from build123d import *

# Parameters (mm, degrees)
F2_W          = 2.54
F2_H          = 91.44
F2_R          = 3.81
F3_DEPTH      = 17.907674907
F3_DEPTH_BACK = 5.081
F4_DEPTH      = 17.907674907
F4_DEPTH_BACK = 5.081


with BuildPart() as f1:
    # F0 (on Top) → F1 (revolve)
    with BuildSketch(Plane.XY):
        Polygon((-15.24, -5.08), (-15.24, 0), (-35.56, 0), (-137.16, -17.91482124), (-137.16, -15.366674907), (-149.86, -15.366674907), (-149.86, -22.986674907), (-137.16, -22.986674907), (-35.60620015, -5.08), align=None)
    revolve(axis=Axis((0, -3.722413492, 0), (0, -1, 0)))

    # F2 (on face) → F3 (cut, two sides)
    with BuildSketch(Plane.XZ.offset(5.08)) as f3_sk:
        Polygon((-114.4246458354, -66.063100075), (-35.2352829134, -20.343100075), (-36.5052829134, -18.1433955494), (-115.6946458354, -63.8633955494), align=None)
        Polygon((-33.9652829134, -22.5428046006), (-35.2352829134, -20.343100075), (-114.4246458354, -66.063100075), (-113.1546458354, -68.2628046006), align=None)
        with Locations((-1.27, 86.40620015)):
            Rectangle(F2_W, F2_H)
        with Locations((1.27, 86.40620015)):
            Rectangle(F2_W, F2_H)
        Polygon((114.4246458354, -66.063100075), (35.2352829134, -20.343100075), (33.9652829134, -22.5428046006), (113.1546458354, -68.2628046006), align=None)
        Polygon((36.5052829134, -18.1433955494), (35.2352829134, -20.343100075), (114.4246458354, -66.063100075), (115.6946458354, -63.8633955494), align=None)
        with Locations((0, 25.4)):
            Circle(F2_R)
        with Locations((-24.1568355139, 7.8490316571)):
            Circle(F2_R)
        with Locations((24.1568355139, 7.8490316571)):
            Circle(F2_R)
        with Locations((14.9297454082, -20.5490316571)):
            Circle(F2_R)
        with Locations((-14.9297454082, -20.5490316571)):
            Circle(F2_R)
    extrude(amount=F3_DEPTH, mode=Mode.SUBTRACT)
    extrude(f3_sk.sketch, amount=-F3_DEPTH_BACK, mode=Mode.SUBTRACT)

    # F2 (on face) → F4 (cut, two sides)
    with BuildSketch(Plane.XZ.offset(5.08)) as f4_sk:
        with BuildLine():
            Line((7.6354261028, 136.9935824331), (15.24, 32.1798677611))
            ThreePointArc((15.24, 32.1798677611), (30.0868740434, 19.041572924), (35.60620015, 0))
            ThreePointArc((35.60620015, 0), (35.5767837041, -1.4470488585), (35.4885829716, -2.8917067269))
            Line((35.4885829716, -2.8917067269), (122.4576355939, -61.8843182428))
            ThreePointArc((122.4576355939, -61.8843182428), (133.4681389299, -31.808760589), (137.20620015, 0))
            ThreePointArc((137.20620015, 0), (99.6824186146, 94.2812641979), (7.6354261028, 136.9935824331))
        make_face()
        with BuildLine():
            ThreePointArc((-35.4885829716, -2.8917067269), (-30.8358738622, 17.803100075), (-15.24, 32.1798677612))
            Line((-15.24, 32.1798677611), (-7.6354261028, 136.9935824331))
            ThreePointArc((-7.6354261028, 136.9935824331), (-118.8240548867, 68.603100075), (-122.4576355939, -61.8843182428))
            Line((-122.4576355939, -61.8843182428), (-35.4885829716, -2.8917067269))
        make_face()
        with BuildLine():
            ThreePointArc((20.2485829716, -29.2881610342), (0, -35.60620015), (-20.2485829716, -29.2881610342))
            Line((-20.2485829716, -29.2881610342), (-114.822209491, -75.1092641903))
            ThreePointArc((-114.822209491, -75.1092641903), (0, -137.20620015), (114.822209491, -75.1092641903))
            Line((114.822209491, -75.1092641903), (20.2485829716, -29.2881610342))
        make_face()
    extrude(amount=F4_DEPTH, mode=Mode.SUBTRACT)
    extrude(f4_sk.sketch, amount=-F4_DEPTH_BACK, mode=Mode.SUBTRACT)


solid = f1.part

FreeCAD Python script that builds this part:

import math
import FreeCAD as App
import Part
import Sketcher

V = App.Vector
Q = App.Units.Quantity


def add_polygon(sketch, points):
    """Adds a closed chain of lines whose ends are joined by coincident constraints."""
    first, n = sketch.GeometryCount, len(points)
    for a, b in zip(points, points[1:] + points[:1]):
        sketch.addGeometry(Part.LineSegment(App.Vector(*a, 0), App.Vector(*b, 0)), False)
    for i in range(n):
        sketch.addConstraint(Sketcher.Constraint("Coincident", first + i, 2, first + (i + 1) % n, 1))

doc = App.newDocument("Part")
body = doc.addObject("PartDesign::Body", "Body")

sketch1 = doc.addObject("Sketcher::SketchObject", "Sketch")
body.addObject(sketch1)
sketch1.AttachmentSupport = (doc.XY_Plane, [""])
sketch1.MapMode = "FlatFace"
add_polygon(sketch1, [(-15.2, -5.1), (-15.2, 0), (-35.6, 0), (-137.2, -17.9), (-137.2, -15.4), (-149.9, -15.4), (-149.9, -23), (-137.2, -23), (-35.6, -5.1)])
sketch1.addConstraint([
    Sketcher.Constraint("Vertical", 0),
    Sketcher.Constraint("Horizontal", 1),
    Sketcher.Constraint("Vertical", 3),
    Sketcher.Constraint("Horizontal", 4),
    Sketcher.Constraint("Vertical", 5),
    Sketcher.Constraint("Horizontal", 6),
    Sketcher.Constraint("Horizontal", 8),
    Sketcher.Constraint("PointOnObject", 0, 2, -1),
    Sketcher.Constraint("Parallel", 2, 7),
    Sketcher.Constraint("Vertical", 3, 2, 6, 2),
    Sketcher.Constraint("DistanceX", 1, 2, 1, 1, Q("0.8 in")),
    Sketcher.Constraint("DistanceX", 4, 2, 4, 1, Q("0.5 in")),
    Sketcher.Constraint("DistanceY", 0, 1, 0, 2, Q("0.2 in")),
    Sketcher.Constraint("DistanceY", 5, 2, 5, 1, Q("0.3 in")),
    Sketcher.Constraint("Angle", 2, Q("-170 deg")),
    Sketcher.Constraint("DistanceX", 2, 2, 1, 2, Q("4 in")),
    Sketcher.Constraint("DistanceX", 0, 2, -1, 1, Q("0.6 in")),
    Sketcher.Constraint("DistanceX", 8, 1, 8, 2, Q("20.3662 mm")),
])
revolution = doc.addObject("PartDesign::Revolution", "Revolution")
body.addObject(revolution)
revolution.Profile = sketch1
revolution.ReferenceAxis = (sketch1, ["V_Axis"])
revolution.Angle = 360

sketch2 = doc.addObject("Sketcher::SketchObject", "Sketch001")
body.addObject(sketch2)
sketch2.AttachmentSupport = (doc.XZ_Plane, [""])
sketch2.MapMode = "FlatFace"
sketch2.AttachmentOffset = App.Placement(V(0, 0, 0.2 * 25.4), App.Rotation())
add_polygon(sketch2, [(-36.5, -18.1), (-115.7, -63.9), (-113.2, -68.3), (-34, -22.5)])
add_polygon(sketch2, [(-2.5, 132.1), (-2.5, 40.7), (2.5, 40.7), (2.5, 132.1)])
add_polygon(sketch2, [(34, -22.5), (113.2, -68.3), (115.7, -63.9), (36.5, -18.1)])
sketch2.addGeometry(Part.Circle(V(0, 25.4, 0), V(0, 0, 1), 3.8), False)
sketch2.addGeometry(Part.Circle(V(-24.2, 7.8, 0), V(0, 0, 1), 3.8), False)
sketch2.addGeometry(Part.Circle(V(24.2, 7.8, 0), V(0, 0, 1), 3.8), False)
sketch2.addGeometry(Part.Circle(V(14.9, -20.5, 0), V(0, 0, 1), 3.8), False)
sketch2.addGeometry(Part.Circle(V(-14.9, -20.5, 0), V(0, 0, 1), 3.8), False)
sketch2.addConstraint([
    Sketcher.Constraint("Vertical", 4),
    Sketcher.Constraint("Horizontal", 5),
    Sketcher.Constraint("Vertical", 6),
    Sketcher.Constraint("Horizontal", 7),
    Sketcher.Constraint("Equal", 12, 13),
    Sketcher.Constraint("Equal", 13, 14),
    Sketcher.Constraint("Equal", 14, 15),
    Sketcher.Constraint("Equal", 15, 16),
    Sketcher.Constraint("Symmetric", 13, 3, 14, 3, -2),
    Sketcher.Constraint("Symmetric", 15, 3, 16, 3, -2),
    Sketcher.Constraint("Symmetric", 1, 2, 8, 2, -2),
    Sketcher.Constraint("Symmetric", 0, 2, 9, 2, -2),
    Sketcher.Constraint("Symmetric", 3, 2, 10, 2, -2),
    Sketcher.Constraint("Symmetric", 2, 2, 11, 2, -2),
    Sketcher.Constraint("PointOnObject", 12, 3, -2),
    Sketcher.Constraint("Perpendicular", 0, 1),
    Sketcher.Constraint("Perpendicular", 1, 2),
    Sketcher.Constraint("Perpendicular", 2, 3),
    Sketcher.Constraint("Diameter", 12, Q("0.3 in")),
    Sketcher.Constraint("DistanceX", 5, 1, 5, 2, Q("0.2 in")),
    Sketcher.Constraint("DistanceY", 4, 2, 4, 1, Q("3.6 in")),
    Sketcher.Constraint("DistanceY", -1, 1, 12, 3, Q("1 in")),
    Sketcher.Constraint("Angle", 0, Q("-150 deg")),
    Sketcher.Constraint("Distance", 0, Q("3.6 in")),
    Sketcher.Constraint("Distance", 1, Q("0.2 in")),
    Sketcher.Constraint("DistanceX", 4, 2, -1, 1, Q("0.1 in")),
    Sketcher.Constraint("DistanceY", -1, 1, 4, 2, Q("40.6862 mm")),
    Sketcher.Constraint("DistanceX", 0, 2, 16, 3, Q("100.7649 mm")),
    Sketcher.Constraint("DistanceY", -1, 1, 13, 3, Q("7.849032 mm")),
    Sketcher.Constraint("DistanceY", 15, 3, -1, 1, Q("20.549032 mm")),
    Sketcher.Constraint("DistanceX", 13, 3, 14, 3, Q("48.313671 mm")),
    Sketcher.Constraint("DistanceX", 15, 3, 14, 3, Q("9.22709 mm")),
    Sketcher.Constraint("DistanceY", 0, 2, -1, 1, Q("63.863396 mm")),
])
pocket1 = doc.addObject("PartDesign::Pocket", "Pocket")
body.addObject(pocket1)
pocket1.Profile = sketch2
pocket1.Type = "ThroughAll"
pocket1.Midplane = True

sketch3 = doc.addObject("Sketcher::SketchObject", "Sketch002")
body.addObject(sketch3)
sketch3.AttachmentSupport = (doc.XZ_Plane, [""])
sketch3.MapMode = "FlatFace"
sketch3.AttachmentOffset = App.Placement(V(0, 0, 0.2 * 25.4), App.Rotation())
sketch3.addGeometry([
    Part.LineSegment(V(7.6, 137, 0), V(15.2, 32.2, 0)),
    Part.ArcOfCircle(Part.Circle(V(0, 0, 0), V(0, 0, 1), 35.6), math.radians(0), math.radians(65)),
    Part.ArcOfCircle(Part.Circle(V(0, 0, 0), V(0, 0, 1), 35.6), math.radians(-4.66), math.radians(0)),
    Part.LineSegment(V(35.5, -2.9, 0), V(122.5, -61.9, 0)),
    Part.ArcOfCircle(Part.Circle(V(0, 0, 0), V(0, 0, 1), 137.2), math.radians(-27), math.radians(0)),
    Part.ArcOfCircle(Part.Circle(V(0, 0, 0), V(0, 0, 1), 137.2), math.radians(0), math.radians(87)),
    Part.ArcOfCircle(Part.Circle(V(0, 0, 0), V(0, 0, 1), 35.6), math.radians(115), math.radians(185)),
    Part.LineSegment(V(-15.2, 32.2, 0), V(-7.6, 137, 0)),
    Part.ArcOfCircle(Part.Circle(V(0, 0, 0), V(0, 0, 1), 137.2), math.radians(93), math.radians(207)),
    Part.LineSegment(V(-122.5, -61.9, 0), V(-35.5, -2.9, 0)),
    Part.ArcOfCircle(Part.Circle(V(0, 0, 0), V(0, 0, 1), 35.6), math.radians(-125), math.radians(-55)),
    Part.LineSegment(V(-20.2, -29.3, 0), V(-114.8, -75.1, 0)),
    Part.ArcOfCircle(Part.Circle(V(0, 0, 0), V(0, 0, 1), 137.2), math.radians(-147), math.radians(-33)),
    Part.LineSegment(V(114.8, -75.1, 0), V(20.2, -29.3, 0)),
], False)
sketch3.addConstraint([
    Sketcher.Constraint("Coincident", 0, 2, 1, 2),
    Sketcher.Constraint("Tangent", 1, 1, 2, 2),
    Sketcher.Constraint("Coincident", 2, 1, 3, 1),
    Sketcher.Constraint("Coincident", 3, 2, 4, 1),
    Sketcher.Constraint("Tangent", 4, 2, 5, 1),
    Sketcher.Constraint("Coincident", 5, 2, 0, 1),
    Sketcher.Constraint("Coincident", 6, 1, 7, 1),
    Sketcher.Constraint("Coincident", 7, 2, 8, 1),
    Sketcher.Constraint("Coincident", 8, 2, 9, 1),
    Sketcher.Constraint("Coincident", 9, 2, 6, 2),
    Sketcher.Constraint("Coincident", 10, 1, 11, 1),
    Sketcher.Constraint("Coincident", 11, 2, 12, 1),
    Sketcher.Constraint("Coincident", 12, 2, 13, 1),
    Sketcher.Constraint("Coincident", 13, 2, 10, 2),
    Sketcher.Constraint("Coincident", 1, 3, -1, 1),
    Sketcher.Constraint("Coincident", 4, 3, -1, 1),
    Sketcher.Constraint("Coincident", 6, 3, -1, 1),
    Sketcher.Constraint("Coincident", 8, 3, -1, 1),
    Sketcher.Constraint("Coincident", 10, 3, -1, 1),
    Sketcher.Constraint("Coincident", 12, 3, -1, 1),
    Sketcher.Constraint("Equal", 1, 2),
    Sketcher.Constraint("Equal", 4, 5),
    Sketcher.Constraint("Equal", 2, 6),
    Sketcher.Constraint("Equal", 5, 8),
    Sketcher.Constraint("Equal", 6, 10),
    Sketcher.Constraint("Equal", 8, 12),
    Sketcher.Constraint("PointOnObject", 1, 1, -1),
    Sketcher.Constraint("PointOnObject", 4, 2, -1),
    Sketcher.Constraint("Horizontal", 0, 2, 6, 1),
    Sketcher.Constraint("Horizontal", 5, 2, 7, 2),
    Sketcher.Constraint("Horizontal", 3, 2, 8, 2),
    Sketcher.Constraint("Horizontal", 2, 1, 9, 2),
    Sketcher.Constraint("Horizontal", 11, 2, 12, 2),
    Sketcher.Constraint("Horizontal", 10, 1, 13, 2),
    Sketcher.Constraint("Equal", 0, 3),
    Sketcher.Constraint("Equal", 9, 11),
    Sketcher.Constraint("DistanceX", 1, 1, 4, 2, Q("4 in")),
    Sketcher.Constraint("DistanceX", -1, 1, 0, 2, Q("0.6 in")),
    Sketcher.Constraint("DistanceX", 9, 2, 10, 1, Q("0.6 in")),
    Sketcher.Constraint("Radius", 1, Q("35.6062 mm")),
    Sketcher.Constraint("Distance", 0, Q("105.089221 mm")),
    Sketcher.Constraint("DistanceY", 3, 2, -1, 1, Q("61.884318 mm")),
])
pocket2 = doc.addObject("PartDesign::Pocket", "Pocket001")
body.addObject(pocket2)
pocket2.Profile = sketch3
pocket2.Type = "ThroughAll"
pocket2.Midplane = True

doc.recompute()
